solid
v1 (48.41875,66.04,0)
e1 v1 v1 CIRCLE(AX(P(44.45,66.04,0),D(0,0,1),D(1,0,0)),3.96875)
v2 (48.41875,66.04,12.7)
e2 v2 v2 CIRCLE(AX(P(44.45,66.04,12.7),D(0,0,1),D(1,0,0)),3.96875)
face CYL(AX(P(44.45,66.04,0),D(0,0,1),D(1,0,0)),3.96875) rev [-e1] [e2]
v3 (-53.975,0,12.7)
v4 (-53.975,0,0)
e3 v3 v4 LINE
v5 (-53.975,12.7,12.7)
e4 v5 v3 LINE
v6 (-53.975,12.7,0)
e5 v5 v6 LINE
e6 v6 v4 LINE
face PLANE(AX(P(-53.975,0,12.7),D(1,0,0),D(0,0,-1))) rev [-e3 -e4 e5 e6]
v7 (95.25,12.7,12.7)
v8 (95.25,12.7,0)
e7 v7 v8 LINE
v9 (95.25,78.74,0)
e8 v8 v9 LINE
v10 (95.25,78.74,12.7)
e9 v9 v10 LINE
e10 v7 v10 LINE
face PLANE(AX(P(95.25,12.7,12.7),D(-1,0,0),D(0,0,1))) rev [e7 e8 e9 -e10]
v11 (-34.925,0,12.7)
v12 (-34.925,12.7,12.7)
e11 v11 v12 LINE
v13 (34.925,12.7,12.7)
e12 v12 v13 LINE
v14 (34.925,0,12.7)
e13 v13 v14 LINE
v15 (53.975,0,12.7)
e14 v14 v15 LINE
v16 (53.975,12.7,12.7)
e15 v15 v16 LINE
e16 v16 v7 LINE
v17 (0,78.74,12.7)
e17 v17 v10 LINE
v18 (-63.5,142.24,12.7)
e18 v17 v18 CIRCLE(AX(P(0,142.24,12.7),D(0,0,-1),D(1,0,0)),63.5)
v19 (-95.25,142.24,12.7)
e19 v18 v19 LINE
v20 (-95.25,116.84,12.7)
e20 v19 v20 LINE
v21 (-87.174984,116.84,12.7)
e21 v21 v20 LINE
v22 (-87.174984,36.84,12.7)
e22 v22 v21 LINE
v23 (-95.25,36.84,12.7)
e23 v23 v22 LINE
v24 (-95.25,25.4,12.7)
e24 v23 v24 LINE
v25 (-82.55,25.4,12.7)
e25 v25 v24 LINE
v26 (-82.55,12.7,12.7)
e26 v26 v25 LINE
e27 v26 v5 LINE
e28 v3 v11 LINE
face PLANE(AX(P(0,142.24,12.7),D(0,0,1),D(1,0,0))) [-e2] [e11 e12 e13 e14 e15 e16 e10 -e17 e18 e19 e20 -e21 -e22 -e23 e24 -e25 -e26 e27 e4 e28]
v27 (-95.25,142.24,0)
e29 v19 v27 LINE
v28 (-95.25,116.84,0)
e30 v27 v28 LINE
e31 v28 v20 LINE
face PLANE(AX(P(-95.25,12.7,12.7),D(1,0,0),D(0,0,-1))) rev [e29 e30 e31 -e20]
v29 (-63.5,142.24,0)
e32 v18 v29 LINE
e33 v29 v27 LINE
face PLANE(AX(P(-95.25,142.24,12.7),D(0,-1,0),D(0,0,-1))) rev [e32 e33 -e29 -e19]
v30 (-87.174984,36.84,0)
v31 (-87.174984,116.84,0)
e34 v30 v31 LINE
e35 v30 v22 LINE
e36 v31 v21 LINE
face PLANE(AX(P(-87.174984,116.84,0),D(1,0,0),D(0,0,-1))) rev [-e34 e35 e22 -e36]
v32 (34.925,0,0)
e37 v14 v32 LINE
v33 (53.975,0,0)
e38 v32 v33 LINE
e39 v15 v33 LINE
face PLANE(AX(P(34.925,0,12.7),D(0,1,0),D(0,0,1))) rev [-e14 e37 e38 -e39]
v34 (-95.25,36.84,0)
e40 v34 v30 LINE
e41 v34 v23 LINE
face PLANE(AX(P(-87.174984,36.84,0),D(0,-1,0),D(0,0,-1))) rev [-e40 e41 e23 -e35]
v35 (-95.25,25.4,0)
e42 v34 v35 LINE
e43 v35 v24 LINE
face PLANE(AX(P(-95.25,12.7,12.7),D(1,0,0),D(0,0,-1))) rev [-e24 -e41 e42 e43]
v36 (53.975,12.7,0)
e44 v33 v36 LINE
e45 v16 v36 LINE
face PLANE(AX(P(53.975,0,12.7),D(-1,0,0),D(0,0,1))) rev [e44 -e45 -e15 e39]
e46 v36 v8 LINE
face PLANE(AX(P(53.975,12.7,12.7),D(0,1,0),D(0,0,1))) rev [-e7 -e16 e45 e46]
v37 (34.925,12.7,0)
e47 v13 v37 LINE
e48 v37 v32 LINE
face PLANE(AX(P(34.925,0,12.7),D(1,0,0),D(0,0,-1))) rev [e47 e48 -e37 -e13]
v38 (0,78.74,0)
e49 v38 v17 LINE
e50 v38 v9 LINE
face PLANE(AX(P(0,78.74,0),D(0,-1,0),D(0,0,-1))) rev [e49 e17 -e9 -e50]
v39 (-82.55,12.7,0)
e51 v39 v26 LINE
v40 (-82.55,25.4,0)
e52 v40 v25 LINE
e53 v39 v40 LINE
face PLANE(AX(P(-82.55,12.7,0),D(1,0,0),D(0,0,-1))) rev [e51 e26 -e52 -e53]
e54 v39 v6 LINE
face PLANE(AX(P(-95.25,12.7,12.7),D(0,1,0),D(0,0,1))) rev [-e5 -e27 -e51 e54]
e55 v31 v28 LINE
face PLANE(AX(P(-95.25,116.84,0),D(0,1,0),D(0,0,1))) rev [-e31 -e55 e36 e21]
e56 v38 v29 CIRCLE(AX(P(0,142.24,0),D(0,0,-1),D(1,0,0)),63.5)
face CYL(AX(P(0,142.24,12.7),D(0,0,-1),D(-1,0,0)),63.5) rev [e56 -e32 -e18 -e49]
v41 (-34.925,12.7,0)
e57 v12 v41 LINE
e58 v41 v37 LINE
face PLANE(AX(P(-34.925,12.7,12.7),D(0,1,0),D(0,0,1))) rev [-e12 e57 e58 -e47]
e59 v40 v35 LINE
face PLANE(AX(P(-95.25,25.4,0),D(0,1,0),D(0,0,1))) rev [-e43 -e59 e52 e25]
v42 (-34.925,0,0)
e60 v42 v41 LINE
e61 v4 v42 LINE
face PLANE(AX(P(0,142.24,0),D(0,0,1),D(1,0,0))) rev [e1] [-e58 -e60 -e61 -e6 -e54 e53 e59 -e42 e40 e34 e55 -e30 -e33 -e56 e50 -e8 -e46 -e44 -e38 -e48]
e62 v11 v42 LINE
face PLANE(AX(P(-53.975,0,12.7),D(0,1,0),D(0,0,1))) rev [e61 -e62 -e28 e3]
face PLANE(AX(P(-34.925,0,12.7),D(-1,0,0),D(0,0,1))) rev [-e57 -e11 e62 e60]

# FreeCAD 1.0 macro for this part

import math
import FreeCAD as App
import Part
import Sketcher
Q = App.Units.Quantity

doc = App.newDocument("Part")
body = doc.addObject("PartDesign::Body", "Body")

sketch1 = body.newObject("Sketcher::SketchObject", "Sketch")
sketch1.AttachmentSupport = (doc.getObject("XY_Plane"), [""])
sketch1.MapMode = "FlatFace"
sketch1.addGeometry(Part.LineSegment(App.Vector(-95.25, 12.7, 0), App.Vector(-53.975, 12.7, 0)), False)
sketch1.addGeometry(Part.LineSegment(App.Vector(-53.975, 12.7, 0), App.Vector(-53.975, 0, 0)), False)
sketch1.addGeometry(Part.LineSegment(App.Vector(-53.975, 0, 0), App.Vector(-34.925, 0, 0)), False)
sketch1.addGeometry(Part.LineSegment(App.Vector(-34.925, 0, 0), App.Vector(-34.925, 12.7, 0)), False)
sketch1.addGeometry(Part.LineSegment(App.Vector(-34.925, 12.7, 0), App.Vector(34.925, 12.7, 0)), False)
sketch1.addGeometry(Part.LineSegment(App.Vector(34.925, 12.7, 0), App.Vector(34.925, 0, 0)), False)
sketch1.addGeometry(Part.LineSegment(App.Vector(34.925, 0, 0), App.Vector(53.975, 0, 0)), False)
sketch1.addGeometry(Part.LineSegment(App.Vector(53.975, 0, 0), App.Vector(53.975, 12.7, 0)), False)
sketch1.addGeometry(Part.LineSegment(App.Vector(53.975, 12.7, 0), App.Vector(95.25, 12.7, 0)), False)
sketch1.addGeometry(Part.LineSegment(App.Vector(95.25, 12.7, 0), App.Vector(95.25, 142.24, 0)), False)
sketch1.addGeometry(Part.LineSegment(App.Vector(95.25, 142.24, 0), App.Vector(63.5, 142.24, 0)), False)
sketch1.addGeometry(Part.ArcOfCircle(Part.Circle(App.Vector(0, 142.24, 0), App.Vector(0, 0, 1), 63.5), math.radians(180), math.radians(360)), False)
sketch1.addGeometry(Part.LineSegment(App.Vector(-63.5, 142.24, 0), App.Vector(-95.25, 142.24, 0)), False)
sketch1.addGeometry(Part.LineSegment(App.Vector(-95.25, 142.24, 0), App.Vector(-95.25, 12.7, 0)), False)
sketch1.addConstraint(Sketcher.Constraint("Coincident", 0, 2, 1, 1))
sketch1.addConstraint(Sketcher.Constraint("Coincident", 1, 2, 2, 1))
sketch1.addConstraint(Sketcher.Constraint("Coincident", 2, 2, 3, 1))
sketch1.addConstraint(Sketcher.Constraint("Coincident", 3, 2, 4, 1))
sketch1.addConstraint(Sketcher.Constraint("Coincident", 4, 2, 5, 1))
sketch1.addConstraint(Sketcher.Constraint("Coincident", 5, 2, 6, 1))
sketch1.addConstraint(Sketcher.Constraint("Coincident", 6, 2, 7, 1))
sketch1.addConstraint(Sketcher.Constraint("Coincident", 7, 2, 8, 1))
sketch1.addConstraint(Sketcher.Constraint("Coincident", 8, 2, 9, 1))
sketch1.addConstraint(Sketcher.Constraint("Coincident", 9, 2, 10, 1))
sketch1.addConstraint(Sketcher.Constraint("Coincident", 10, 2, 11, 2))
sketch1.addConstraint(Sketcher.Constraint("Coincident", 11, 1, 12, 1))
sketch1.addConstraint(Sketcher.Constraint("Coincident", 12, 2, 13, 1))
sketch1.addConstraint(Sketcher.Constraint("Coincident", 13, 2, 0, 1))
sketch1.addConstraint(Sketcher.Constraint("Horizontal", 0))
sketch1.addConstraint(Sketcher.Constraint("Vertical", 1))
sketch1.addConstraint(Sketcher.Constraint("Horizontal", 2))
sketch1.addConstraint(Sketcher.Constraint("Vertical", 3))
sketch1.addConstraint(Sketcher.Constraint("Horizontal", 4))
sketch1.addConstraint(Sketcher.Constraint("Vertical", 5))
sketch1.addConstraint(Sketcher.Constraint("Horizontal", 6))
sketch1.addConstraint(Sketcher.Constraint("Vertical", 7))
sketch1.addConstraint(Sketcher.Constraint("Horizontal", 8))
sketch1.addConstraint(Sketcher.Constraint("Vertical", 9))
sketch1.addConstraint(Sketcher.Constraint("Horizontal", 10))
sketch1.addConstraint(Sketcher.Constraint("Horizontal", 12))
sketch1.addConstraint(Sketcher.Constraint("Vertical", 13))
sketch1.addConstraint(Sketcher.Constraint("Symmetric", 2, 2, 5, 2, -1, 1))
sketch1.addConstraint(Sketcher.Constraint("Symmetric", 1, 2, 6, 2, -2))
sketch1.addConstraint(Sketcher.Constraint("Symmetric", 10, 2, 11, 1, -2))
sketch1.addConstraint(Sketcher.Constraint("Symmetric", 8, 2, 13, 2, -2))
sketch1.addConstraint(Sketcher.Constraint("Horizontal", 0, 2, 3, 2))
sketch1.addConstraint(Sketcher.Constraint("Horizontal", 11, 3, 9, 2))
sketch1.addConstraint(Sketcher.Constraint("Radius", 11, Q("2.5 in")))
sketch1.addConstraint(Sketcher.Constraint("DistanceY", 1, 2, 1, 1, Q("0.5 in")))
sketch1.addConstraint(Sketcher.Constraint("DistanceY", 9, 1, 9, 2, Q("5.1 in")))
sketch1.addConstraint(Sketcher.Constraint("DistanceX", 2, 1, 2, 2, Q("0.75 in")))
sketch1.addConstraint(Sketcher.Constraint("DistanceX", 4, 1, 4, 2, Q("2.75 in")))
sketch1.addConstraint(Sketcher.Constraint("DistanceX", 10, 2, 10, 1, Q("1.25 in")))
pad1 = body.newObject("PartDesign::Pad", "Pad")
pad1.Profile = sketch1
pad1.Length = Q("0.5 in")

sketch2 = body.newObject("Sketcher::SketchObject", "Sketch001")
sketch2.AttachmentSupport = (doc.getObject("XY_Plane"), [""])
sketch2.MapMode = "FlatFace"
sketch2.AttachmentOffset = App.Placement(App.Vector(0, 0, 0.5 * 25.4), App.Rotation())
sketch2.addGeometry(Part.Circle(App.Vector(44.45, 66.04, 0), App.Vector(0, 0, 1), 3.96875), False)
sketch2.addConstraint(Sketcher.Constraint("Diameter", 0, Q("0.3125 in")))
sketch2.addConstraint(Sketcher.Constraint("DistanceY", -1, 1, 0, 3, Q("2.6 in")))
sketch2.addConstraint(Sketcher.Constraint("DistanceX", -1, 1, 0, 3, Q("1.75 in")))
pocket1 = body.newObject("PartDesign::Pocket", "Pocket")
pocket1.Profile = sketch2
pocket1.Type = "ThroughAll"

sketch3 = body.newObject("Sketcher::SketchObject", "Sketch002")
sketch3.AttachmentSupport = (doc.getObject("XY_Plane"), [""])
sketch3.MapMode = "FlatFace"
sketch3.AttachmentOffset = App.Placement(App.Vector(0, 0, 0.5 * 25.4), App.Rotation())
sketch3.addGeometry(Part.LineSegment(App.Vector(-95.25, 25.4, 0), App.Vector(-95.25, 12.7, 0)), False)
sketch3.addGeometry(Part.LineSegment(App.Vector(-95.25, 12.7, 0), App.Vector(-82.55, 12.7, 0)), False)
sketch3.addGeometry(Part.LineSegment(App.Vector(-82.55, 12.7, 0), App.Vector(-82.55, 25.4, 0)), False)
sketch3.addGeometry(Part.LineSegment(App.Vector(-82.55, 25.4, 0), App.Vector(-95.25, 25.4, 0)), False)
sketch3.addConstraint(Sketcher.Constraint("Coincident", 0, 2, 1, 1))
sketch3.addConstraint(Sketcher.Constraint("Coincident", 1, 2, 2, 1))
sketch3.addConstraint(Sketcher.Constraint("Coincident", 2, 2, 3, 1))
sketch3.addConstraint(Sketcher.Constraint("Coincident", 3, 2, 0, 1))
sketch3.addConstraint(Sketcher.Constraint("Vertical", 0))
sketch3.addConstraint(Sketcher.Constraint("Horizontal", 1))
sketch3.addConstraint(Sketcher.Constraint("Vertical", 2))
sketch3.addConstraint(Sketcher.Constraint("Horizontal", 3))
sketch3.addConstraint(Sketcher.Constraint("Equal", 3, 0))
sketch3.addConstraint(Sketcher.Constraint("DistanceX", 1, 1, 1, 2, Q("0.5 in")))
sketch3.addConstraint(Sketcher.Constraint("DistanceY", -1, 1, 2, 2, Q("1 in")))
sketch3.addConstraint(Sketcher.Constraint("DistanceX", 0, 2, -1, 1, Q("3.75 in")))
pocket2 = body.newObject("PartDesign::Pocket", "Pocket001")
pocket2.Profile = sketch3
pocket2.Type = "ThroughAll"

sketch4 = body.newObject("Sketcher::SketchObject", "Sketch003")
sketch4.AttachmentSupport = (doc.getObject("XY_Plane"), [""])
sketch4.MapMode = "FlatFace"
sketch4.AttachmentOffset = App.Placement(App.Vector(0, 0, 0.5 * 25.4), App.Rotation())
sketch4.addGeometry(Part.LineSegment(App.Vector(0, 153.942263, 0), App.Vector(0, 78.74, 0)), False)
sketch4.addGeometry(Part.LineSegment(App.Vector(0, 78.74, 0), App.Vector(105.983052, 78.74, 0)), False)
sketch4.addGeometry(Part.LineSegment(App.Vector(105.983052, 78.74, 0), App.Vector(105.983052, 153.942263, 0)), False)
sketch4.addGeometry(Part.LineSegment(App.Vector(105.983052, 153.942263, 0), App.Vector(0, 153.942263, 0)), False)
sketch4.addConstraint(Sketcher.Constraint("Coincident", 0, 2, 1, 1))
sketch4.addConstraint(Sketcher.Constraint("Coincident", 1, 2, 2, 1))
sketch4.addConstraint(Sketcher.Constraint("Coincident", 2, 2, 3, 1))
sketch4.addConstraint(Sketcher.Constraint("Coincident", 3, 2, 0, 1))
sketch4.addConstraint(Sketcher.Constraint("Vertical", 0))
sketch4.addConstraint(Sketcher.Constraint("Horizontal", 1))
sketch4.addConstraint(Sketcher.Constraint("Vertical", 2))
sketch4.addConstraint(Sketcher.Constraint("Horizontal", 3))
sketch4.addConstraint(Sketcher.Constraint("PointOnObject", 0, 2, -2))
sketch4.addConstraint(Sketcher.Constraint("DistanceY", -1, 1, 0, 2, Q("3.1 in")))
sketch4.addConstraint(Sketcher.Constraint("DistanceX", 1, 1, 1, 2, Q("105.983052 mm")))
sketch4.addConstraint(Sketcher.Constraint("DistanceY", 0, 2, 0, 1, Q("75.202263 mm")))
pocket3 = body.newObject("PartDesign::Pocket", "Pocket002")
pocket3.Profile = sketch4
pocket3.Type = "ThroughAll"

sketch5 = body.newObject("Sketcher::SketchObject", "Sketch004")
sketch5.AttachmentSupport = (doc.getObject("XY_Plane"), [""])
sketch5.MapMode = "FlatFace"
sketch5.AttachmentOffset = App.Placement(App.Vector(0, 0, 0.5 * 25.4), App.Rotation())
sketch5.addGeometry(Part.LineSegment(App.Vector(-95.25, 116.84, 0), App.Vector(-95.25, 36.84, 0)), False)
sketch5.addGeometry(Part.LineSegment(App.Vector(-95.25, 36.84, 0), App.Vector(-87.174984, 36.84, 0)), False)
sketch5.addGeometry(Part.LineSegment(App.Vector(-87.174984, 36.84, 0), App.Vector(-87.174984, 116.84, 0)), False)
sketch5.addGeometry(Part.LineSegment(App.Vector(-87.174984, 116.84, 0), App.Vector(-95.25, 116.84, 0)), False)
sketch5.addConstraint(Sketcher.Constraint("Coincident", 0, 2, 1, 1))
sketch5.addConstraint(Sketcher.Constraint("Coincident", 1, 2, 2, 1))
sketch5.addConstraint(Sketcher.Constraint("Coincident", 2, 2, 3, 1))
sketch5.addConstraint(Sketcher.Constraint("Coincident", 3, 2, 0, 1))
sketch5.addConstraint(Sketcher.Constraint("Vertical", 0))
sketch5.addConstraint(Sketcher.Constraint("Horizontal", 1))
sketch5.addConstraint(Sketcher.Constraint("Vertical", 2))
sketch5.addConstraint(Sketcher.Constraint("Horizontal", 3))
sketch5.addConstraint(Sketcher.Constraint("DistanceY", -1, 1, 2, 2, Q("4.6 in")))
sketch5.addConstraint(Sketcher.Constraint("DistanceX", 0, 2, -1, 1, Q("3.75 in")))
sketch5.addConstraint(Sketcher.Constraint("DistanceY", 0, 2, 0, 1, Q("80 mm")))
sketch5.addConstraint(Sketcher.Constraint("DistanceX", 1, 1, 1, 2, Q("8.075016 mm")))
pocket4 = body.newObject("PartDesign::Pocket", "Pocket003")
pocket4.Profile = sketch5
pocket4.Length = Q("0.5 in")

doc.recompute()
